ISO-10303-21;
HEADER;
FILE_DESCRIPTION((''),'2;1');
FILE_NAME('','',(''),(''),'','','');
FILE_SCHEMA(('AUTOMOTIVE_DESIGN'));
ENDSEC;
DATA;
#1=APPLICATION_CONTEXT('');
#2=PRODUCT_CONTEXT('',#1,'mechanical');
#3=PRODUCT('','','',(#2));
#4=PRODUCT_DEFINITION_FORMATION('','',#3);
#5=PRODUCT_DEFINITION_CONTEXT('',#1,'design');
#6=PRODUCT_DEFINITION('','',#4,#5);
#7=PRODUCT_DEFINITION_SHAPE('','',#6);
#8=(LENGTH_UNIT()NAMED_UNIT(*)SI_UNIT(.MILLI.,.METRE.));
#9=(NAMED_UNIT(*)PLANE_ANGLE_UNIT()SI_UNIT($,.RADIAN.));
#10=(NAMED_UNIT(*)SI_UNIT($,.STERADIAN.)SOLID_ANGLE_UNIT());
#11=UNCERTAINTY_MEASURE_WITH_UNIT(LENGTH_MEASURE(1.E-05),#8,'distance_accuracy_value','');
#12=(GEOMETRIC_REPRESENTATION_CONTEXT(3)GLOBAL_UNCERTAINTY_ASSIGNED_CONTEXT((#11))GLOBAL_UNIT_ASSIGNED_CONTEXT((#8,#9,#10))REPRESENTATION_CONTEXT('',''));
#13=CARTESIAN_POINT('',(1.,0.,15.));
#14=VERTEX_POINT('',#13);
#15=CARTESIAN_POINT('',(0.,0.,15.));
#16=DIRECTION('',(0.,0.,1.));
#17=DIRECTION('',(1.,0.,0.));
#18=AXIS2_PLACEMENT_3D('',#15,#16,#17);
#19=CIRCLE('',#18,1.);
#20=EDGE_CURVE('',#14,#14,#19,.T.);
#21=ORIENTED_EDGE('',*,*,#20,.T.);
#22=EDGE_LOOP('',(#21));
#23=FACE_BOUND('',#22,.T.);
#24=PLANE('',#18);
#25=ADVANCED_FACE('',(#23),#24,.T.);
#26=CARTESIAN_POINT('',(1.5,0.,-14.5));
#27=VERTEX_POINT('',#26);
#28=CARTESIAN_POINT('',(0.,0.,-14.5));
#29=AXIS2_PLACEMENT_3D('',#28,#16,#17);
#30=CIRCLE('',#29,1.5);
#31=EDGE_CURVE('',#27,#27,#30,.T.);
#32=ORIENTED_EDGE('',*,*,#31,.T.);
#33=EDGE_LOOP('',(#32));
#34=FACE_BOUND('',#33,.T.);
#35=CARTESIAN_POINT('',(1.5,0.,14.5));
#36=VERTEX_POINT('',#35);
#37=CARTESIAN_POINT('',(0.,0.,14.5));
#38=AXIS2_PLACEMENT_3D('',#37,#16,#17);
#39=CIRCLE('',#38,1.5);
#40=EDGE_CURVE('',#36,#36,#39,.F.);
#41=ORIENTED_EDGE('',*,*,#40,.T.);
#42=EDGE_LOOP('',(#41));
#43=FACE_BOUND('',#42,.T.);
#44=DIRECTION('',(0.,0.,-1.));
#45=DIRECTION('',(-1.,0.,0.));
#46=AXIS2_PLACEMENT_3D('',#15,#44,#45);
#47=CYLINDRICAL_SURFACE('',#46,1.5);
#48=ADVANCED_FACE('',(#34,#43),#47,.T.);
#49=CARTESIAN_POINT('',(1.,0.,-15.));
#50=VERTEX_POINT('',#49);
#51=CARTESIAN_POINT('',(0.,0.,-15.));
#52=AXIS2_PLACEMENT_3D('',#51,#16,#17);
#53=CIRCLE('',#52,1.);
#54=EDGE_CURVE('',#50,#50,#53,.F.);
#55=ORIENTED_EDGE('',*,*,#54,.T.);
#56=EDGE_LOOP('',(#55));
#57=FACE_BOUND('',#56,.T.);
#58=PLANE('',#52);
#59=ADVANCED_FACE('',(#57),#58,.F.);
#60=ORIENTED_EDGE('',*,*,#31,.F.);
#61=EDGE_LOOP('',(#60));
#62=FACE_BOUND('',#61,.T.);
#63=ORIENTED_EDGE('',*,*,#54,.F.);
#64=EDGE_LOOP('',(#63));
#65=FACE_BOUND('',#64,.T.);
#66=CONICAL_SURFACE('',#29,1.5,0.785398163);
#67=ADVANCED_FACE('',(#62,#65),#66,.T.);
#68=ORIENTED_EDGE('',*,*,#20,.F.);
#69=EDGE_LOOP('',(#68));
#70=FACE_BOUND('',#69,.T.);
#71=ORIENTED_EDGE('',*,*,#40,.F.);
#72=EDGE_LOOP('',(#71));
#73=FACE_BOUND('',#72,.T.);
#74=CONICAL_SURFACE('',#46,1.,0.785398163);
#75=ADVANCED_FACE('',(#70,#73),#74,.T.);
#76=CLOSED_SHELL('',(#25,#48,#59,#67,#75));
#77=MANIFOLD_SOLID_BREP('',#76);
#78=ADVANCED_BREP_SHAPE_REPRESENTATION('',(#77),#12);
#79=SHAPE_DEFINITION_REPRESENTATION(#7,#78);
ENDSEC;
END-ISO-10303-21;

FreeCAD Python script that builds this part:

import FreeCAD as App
import Part
import Sketcher
from FreeCAD import Vector
Q = App.Units.Quantity


def edges_at(feature, points):
    """Names of the edges that pass closest to the given points."""
    edges = feature.Shape.Edges
    near = lambda p: min(range(len(edges)), key=lambda i: edges[i].distToShape(Part.Vertex(*p))[0])
    return sorted({f"Edge{near(p) + 1}" for p in points})

doc = App.newDocument("Part")
body = doc.addObject("PartDesign::Body", "Body")

sketch1 = body.newObject("Sketcher::SketchObject", "Sketch")
sketch1.AttachmentSupport = (doc.getObject("XY_Plane"), [""])
sketch1.MapMode = "FlatFace"
sketch1.addGeometry(Part.Circle(Vector(0, 0, 0), Vector(0, 0, 1), 1.5), False)
sketch1.addConstraint([
    Sketcher.Constraint("Coincident", 0, 3, -1, 1),
    Sketcher.Constraint("Diameter", 0, Q("3 mm")),
])
pad1 = body.newObject("PartDesign::Pad", "Pad")
pad1.Profile = sketch1
pad1.Length = 30
pad1.Midplane = True
doc.recompute()

chamfer = body.newObject("PartDesign::Chamfer", "Chamfer")
chamfer.Base = (pad1, edges_at(pad1, [(-1.5, 0, -15), (-1.5, 0, 15)]))
chamfer.Size = 0.5

doc.recompute()
